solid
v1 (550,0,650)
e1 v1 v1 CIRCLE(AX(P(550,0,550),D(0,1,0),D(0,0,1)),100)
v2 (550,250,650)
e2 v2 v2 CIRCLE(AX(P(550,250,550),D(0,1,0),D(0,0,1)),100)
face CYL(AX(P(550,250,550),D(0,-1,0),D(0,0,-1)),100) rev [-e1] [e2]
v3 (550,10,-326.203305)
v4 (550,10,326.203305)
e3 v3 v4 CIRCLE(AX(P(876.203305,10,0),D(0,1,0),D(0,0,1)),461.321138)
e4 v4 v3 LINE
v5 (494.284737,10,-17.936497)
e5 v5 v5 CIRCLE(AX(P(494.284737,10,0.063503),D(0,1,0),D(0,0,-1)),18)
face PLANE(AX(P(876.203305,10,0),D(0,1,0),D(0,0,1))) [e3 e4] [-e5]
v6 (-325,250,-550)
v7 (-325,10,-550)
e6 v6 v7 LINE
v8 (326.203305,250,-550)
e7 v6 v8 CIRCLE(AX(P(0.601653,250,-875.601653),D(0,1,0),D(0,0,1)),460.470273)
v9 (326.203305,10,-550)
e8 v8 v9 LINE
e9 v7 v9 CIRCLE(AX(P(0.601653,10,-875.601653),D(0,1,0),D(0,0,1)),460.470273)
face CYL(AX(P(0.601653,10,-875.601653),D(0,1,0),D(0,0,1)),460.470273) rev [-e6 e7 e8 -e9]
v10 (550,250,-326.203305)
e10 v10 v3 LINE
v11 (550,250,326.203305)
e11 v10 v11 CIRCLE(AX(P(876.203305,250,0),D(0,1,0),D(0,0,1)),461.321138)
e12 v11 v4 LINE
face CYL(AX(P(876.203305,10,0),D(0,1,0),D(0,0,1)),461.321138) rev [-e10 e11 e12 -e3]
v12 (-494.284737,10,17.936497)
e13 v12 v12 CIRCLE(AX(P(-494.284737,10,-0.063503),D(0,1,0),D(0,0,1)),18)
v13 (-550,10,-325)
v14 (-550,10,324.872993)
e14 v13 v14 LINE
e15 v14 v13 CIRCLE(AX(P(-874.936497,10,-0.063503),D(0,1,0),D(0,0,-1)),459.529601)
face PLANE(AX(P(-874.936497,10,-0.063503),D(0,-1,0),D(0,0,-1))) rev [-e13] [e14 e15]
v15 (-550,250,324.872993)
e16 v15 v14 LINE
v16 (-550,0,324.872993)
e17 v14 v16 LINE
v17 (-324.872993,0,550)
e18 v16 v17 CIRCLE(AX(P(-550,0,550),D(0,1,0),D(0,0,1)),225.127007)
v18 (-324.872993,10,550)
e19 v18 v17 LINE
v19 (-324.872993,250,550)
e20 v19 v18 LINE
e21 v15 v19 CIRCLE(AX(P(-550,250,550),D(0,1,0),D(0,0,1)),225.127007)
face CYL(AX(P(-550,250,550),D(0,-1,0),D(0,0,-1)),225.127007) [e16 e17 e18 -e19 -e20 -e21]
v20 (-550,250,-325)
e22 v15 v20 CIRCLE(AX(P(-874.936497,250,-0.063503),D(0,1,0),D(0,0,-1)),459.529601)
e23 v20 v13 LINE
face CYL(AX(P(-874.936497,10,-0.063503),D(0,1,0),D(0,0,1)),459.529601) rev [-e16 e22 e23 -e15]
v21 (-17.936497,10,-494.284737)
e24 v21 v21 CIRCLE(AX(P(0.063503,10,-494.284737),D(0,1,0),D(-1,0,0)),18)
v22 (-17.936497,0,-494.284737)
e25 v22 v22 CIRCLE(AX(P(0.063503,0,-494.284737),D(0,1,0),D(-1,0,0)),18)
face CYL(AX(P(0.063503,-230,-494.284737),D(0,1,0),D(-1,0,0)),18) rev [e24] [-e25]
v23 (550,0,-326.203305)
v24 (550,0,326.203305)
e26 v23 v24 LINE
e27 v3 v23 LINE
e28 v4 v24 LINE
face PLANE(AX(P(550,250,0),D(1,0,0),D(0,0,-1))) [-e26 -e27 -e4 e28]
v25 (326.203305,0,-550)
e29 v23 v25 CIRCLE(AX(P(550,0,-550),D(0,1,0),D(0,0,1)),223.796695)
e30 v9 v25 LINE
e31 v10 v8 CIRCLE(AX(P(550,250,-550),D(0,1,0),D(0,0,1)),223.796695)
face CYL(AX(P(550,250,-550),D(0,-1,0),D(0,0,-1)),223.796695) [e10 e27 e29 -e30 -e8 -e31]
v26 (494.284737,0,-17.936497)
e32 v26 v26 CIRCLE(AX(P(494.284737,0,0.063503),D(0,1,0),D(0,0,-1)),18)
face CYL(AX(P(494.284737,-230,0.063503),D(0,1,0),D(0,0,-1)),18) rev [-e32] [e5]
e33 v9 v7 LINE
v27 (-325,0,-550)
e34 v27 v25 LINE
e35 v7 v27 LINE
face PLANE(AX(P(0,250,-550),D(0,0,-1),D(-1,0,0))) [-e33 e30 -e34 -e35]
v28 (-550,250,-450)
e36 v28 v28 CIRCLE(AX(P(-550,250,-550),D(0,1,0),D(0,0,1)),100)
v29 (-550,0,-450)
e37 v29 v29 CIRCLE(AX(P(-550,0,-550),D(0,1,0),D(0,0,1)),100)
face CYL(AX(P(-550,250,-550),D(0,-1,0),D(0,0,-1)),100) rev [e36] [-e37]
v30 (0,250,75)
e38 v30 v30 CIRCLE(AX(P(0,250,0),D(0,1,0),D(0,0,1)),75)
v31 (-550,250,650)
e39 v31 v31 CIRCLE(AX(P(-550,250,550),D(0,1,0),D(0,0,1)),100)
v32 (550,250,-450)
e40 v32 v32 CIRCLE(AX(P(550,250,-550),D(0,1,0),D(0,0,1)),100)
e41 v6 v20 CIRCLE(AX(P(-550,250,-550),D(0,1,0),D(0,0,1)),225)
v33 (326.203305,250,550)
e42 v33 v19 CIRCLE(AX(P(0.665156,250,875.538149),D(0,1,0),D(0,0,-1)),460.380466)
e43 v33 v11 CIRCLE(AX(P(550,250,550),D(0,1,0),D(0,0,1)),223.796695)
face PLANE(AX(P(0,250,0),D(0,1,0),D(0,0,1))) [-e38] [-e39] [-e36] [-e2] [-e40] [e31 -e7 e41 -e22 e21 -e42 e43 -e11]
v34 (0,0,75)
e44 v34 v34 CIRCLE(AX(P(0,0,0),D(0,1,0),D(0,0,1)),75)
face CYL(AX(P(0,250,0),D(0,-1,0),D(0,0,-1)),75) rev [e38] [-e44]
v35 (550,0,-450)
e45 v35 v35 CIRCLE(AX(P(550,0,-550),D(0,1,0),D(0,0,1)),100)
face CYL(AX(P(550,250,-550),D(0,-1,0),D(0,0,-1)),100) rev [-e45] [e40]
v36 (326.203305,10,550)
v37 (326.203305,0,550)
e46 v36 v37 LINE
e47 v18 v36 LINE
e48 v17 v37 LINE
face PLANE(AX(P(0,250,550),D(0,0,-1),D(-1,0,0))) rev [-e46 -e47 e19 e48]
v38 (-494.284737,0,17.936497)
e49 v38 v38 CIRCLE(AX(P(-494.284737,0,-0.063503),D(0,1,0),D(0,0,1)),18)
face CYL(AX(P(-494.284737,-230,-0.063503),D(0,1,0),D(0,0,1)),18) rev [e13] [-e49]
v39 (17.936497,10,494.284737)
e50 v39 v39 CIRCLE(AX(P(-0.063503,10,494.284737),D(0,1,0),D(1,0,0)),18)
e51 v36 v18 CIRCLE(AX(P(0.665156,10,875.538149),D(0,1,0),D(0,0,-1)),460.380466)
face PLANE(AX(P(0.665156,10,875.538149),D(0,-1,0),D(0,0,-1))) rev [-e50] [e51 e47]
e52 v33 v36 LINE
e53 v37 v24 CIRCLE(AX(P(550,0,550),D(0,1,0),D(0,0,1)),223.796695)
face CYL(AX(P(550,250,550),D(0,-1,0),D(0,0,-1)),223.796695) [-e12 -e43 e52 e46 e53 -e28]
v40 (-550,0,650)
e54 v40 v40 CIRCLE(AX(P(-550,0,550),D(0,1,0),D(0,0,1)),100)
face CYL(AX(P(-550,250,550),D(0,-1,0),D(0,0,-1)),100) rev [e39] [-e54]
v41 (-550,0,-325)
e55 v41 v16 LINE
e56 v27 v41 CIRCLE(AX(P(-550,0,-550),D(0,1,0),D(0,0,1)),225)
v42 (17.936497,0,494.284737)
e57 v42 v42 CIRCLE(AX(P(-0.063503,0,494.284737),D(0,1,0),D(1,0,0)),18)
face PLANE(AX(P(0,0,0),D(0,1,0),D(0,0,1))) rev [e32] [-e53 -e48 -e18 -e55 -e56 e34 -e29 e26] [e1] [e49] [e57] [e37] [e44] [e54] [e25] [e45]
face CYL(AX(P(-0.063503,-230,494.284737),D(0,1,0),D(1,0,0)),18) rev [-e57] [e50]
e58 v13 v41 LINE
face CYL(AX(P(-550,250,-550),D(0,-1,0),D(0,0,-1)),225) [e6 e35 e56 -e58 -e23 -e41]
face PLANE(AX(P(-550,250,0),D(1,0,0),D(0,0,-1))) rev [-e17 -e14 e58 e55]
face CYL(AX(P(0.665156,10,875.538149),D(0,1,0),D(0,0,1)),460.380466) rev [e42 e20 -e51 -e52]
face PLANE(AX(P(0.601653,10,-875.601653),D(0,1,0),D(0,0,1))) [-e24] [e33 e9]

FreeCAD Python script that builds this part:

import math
import FreeCAD as App
import Part
import Sketcher

V = App.Vector
Q = App.Units.Quantity

doc = App.newDocument("Part")
params = doc.addObject("Spreadsheet::Sheet", "Params")
for row, (alias, value) in enumerate([
    ("sketch1_diameter", "200 mm"),
    ("sketch1_diameter2", "150 mm"),
    ("sketch1_radius", "225 mm"),
    ("pad1_length", "250 mm"),
    ("pocket1_length", "240 mm"),
    ("sketch3_diameter", "36 mm"),
    ("pocket2_length", "240 mm"),
], start=1):
    params.set(f"A{row}", alias)
    params.set(f"B{row}", "=" + value)
    params.setAlias(f"B{row}", alias)

body = doc.addObject("PartDesign::Body", "Body")

# Sketch on XZ plane
sketch1 = doc.addObject("Sketcher::SketchObject", "Sketch")
body.addObject(sketch1)
sketch1.AttachmentSupport = (doc.XZ_Plane, [""])
sketch1.MapMode = "FlatFace"
sketch1.addGeometry([
    Part.LineSegment(V(326.203305, -550, 0), V(-325, -550, 0)),  # 0
    Part.ArcOfCircle(Part.Circle(V(-550, -550, 0), V(0, 0, 1), 225), math.radians(90), math.radians(360)),  # 1
    Part.LineSegment(V(-550, -325, 0), V(-550, 324.872993, 0)),  # 2
    Part.ArcOfCircle(Part.Circle(V(-550, 550, 0), V(0, 0, 1), 225.127007), math.radians(0), math.radians(270)),  # 3
    Part.LineSegment(V(-324.872993, 550, 0), V(326.203305, 550, 0)),  # 4
    Part.ArcOfCircle(Part.Circle(V(550, 550, 0), V(0, 0, 1), 223.796695), math.radians(-90), math.radians(180)),  # 5
    Part.LineSegment(V(550, 326.203305, 0), V(550, -326.203305, 0)),  # 6
    Part.ArcOfCircle(Part.Circle(V(550, -550, 0), V(0, 0, 1), 223.796695), math.radians(180), math.radians(450)),  # 7
    Part.Circle(V(-550, 550, 0), V(0, 0, 1), 100),  # 8
    Part.Circle(V(550, 550, 0), V(0, 0, 1), 100),  # 9
    Part.Circle(V(-550, -550, 0), V(0, 0, 1), 100),  # 10
    Part.Circle(V(0, 0, 0), V(0, 0, 1), 75),  # 11
    Part.Circle(V(550, -550, 0), V(0, 0, 1), 100),  # 12
], False)
sketch1.addConstraint([
    Sketcher.Constraint("Coincident", 0, 2, 1, 2),
    Sketcher.Constraint("Coincident", 1, 1, 2, 1),
    Sketcher.Constraint("Coincident", 2, 2, 3, 2),
    Sketcher.Constraint("Coincident", 3, 1, 4, 1),
    Sketcher.Constraint("Coincident", 4, 2, 5, 2),
    Sketcher.Constraint("Coincident", 5, 1, 6, 1),
    Sketcher.Constraint("Coincident", 6, 2, 7, 2),
    Sketcher.Constraint("Coincident", 7, 1, 0, 1),
    Sketcher.Constraint("Horizontal", 0),
    Sketcher.Constraint("Vertical", 2),
    Sketcher.Constraint("Horizontal", 4),
    Sketcher.Constraint("Vertical", 6),
    Sketcher.Constraint("Coincident", 11, 3, -1, 1),
    Sketcher.Constraint("Coincident", 8, 3, 3, 3),
    Sketcher.Constraint("Coincident", 9, 3, 5, 3),
    Sketcher.Constraint("Coincident", 10, 3, 1, 3),
    Sketcher.Constraint("Coincident", 12, 3, 7, 3),
    Sketcher.Constraint("Equal", 5, 7),
    Sketcher.Constraint("Equal", 8, 9),
    Sketcher.Constraint("Equal", 9, 10),
    Sketcher.Constraint("Equal", 10, 12),
    Sketcher.Constraint("Symmetric", 1, 3, 5, 3, -1, 1),
    Sketcher.Constraint("Symmetric", 3, 3, 7, 3, -1, 1),
    Sketcher.Constraint("Symmetric", 3, 3, 5, 3, -2),
    Sketcher.Constraint("Horizontal", 12, 3, 0, 2),
    Sketcher.Constraint("Horizontal", 9, 3, 3, 1),
    Sketcher.Constraint("Vertical", 10, 3, 1, 1),
    Sketcher.Constraint("Vertical", 12, 3, 5, 1),
    Sketcher.Constraint("Diameter", 8, Q("200 mm")),
    Sketcher.Constraint("Diameter", 11, Q("150 mm")),
    Sketcher.Constraint("Radius", 1, Q("225 mm")),
    Sketcher.Constraint("DistanceX", 1, 3, -1, 1, Q("550 mm")),
    Sketcher.Constraint("DistanceY", 1, 3, -1, 1, Q("550 mm")),
    Sketcher.Constraint("DistanceX", 4, 1, 4, 2, Q("651.076299 mm")),
    Sketcher.Constraint("Radius", 3, Q("225.127007 mm")),
])
sketch1.setExpression("Constraints[28]", "Params.sketch1_diameter")
sketch1.setExpression("Constraints[29]", "Params.sketch1_diameter2")
sketch1.setExpression("Constraints[30]", "Params.sketch1_radius")
pad1 = doc.addObject("PartDesign::Pad", "Pad")
body.addObject(pad1)
pad1.Profile = sketch1
pad1.setExpression("Length", "Params.pad1_length")
pad1.Reversed = True

# Sketch on XZ plane
sketch2 = doc.addObject("Sketcher::SketchObject", "Sketch001")
body.addObject(sketch2)
sketch2.AttachmentSupport = (doc.XZ_Plane, [""])
sketch2.MapMode = "FlatFace"
sketch2.AttachmentOffset = App.Placement(V(0, 0, -250), App.Rotation())
sketch2.addGeometry([
    Part.LineSegment(V(-550, -325, 0), V(-550, 324.872993, 0)),  # 0
    Part.ArcOfCircle(Part.Circle(V(-874.936497, -0.063503, 0), V(0, 0, 1), 459.529601), math.radians(-45), math.radians(45)),  # 1
    Part.LineSegment(V(-324.872993, 550, 0), V(326.203305, 550, 0)),  # 2
    Part.ArcOfCircle(Part.Circle(V(0.665156, 875.538149, 0), V(0, 0, 1), 460.380466), math.radians(-135), math.radians(-45)),  # 3
    Part.LineSegment(V(326.203305, -550, 0), V(-325, -550, 0)),  # 4
    Part.ArcOfCircle(Part.Circle(V(0.601653, -875.601653, 0), V(0, 0, 1), 460.470273), math.radians(45), math.radians(135)),  # 5
    Part.LineSegment(V(550, 326.203305, 0), V(550, -326.203305, 0)),  # 6
    Part.ArcOfCircle(Part.Circle(V(876.203305, 0, 0), V(0, 0, 1), 461.321138), math.radians(135), math.radians(225)),  # 7
], False)
sketch2.addConstraint([
    Sketcher.Constraint("Coincident", 0, 1, 1, 1),
    Sketcher.Constraint("Coincident", 1, 2, 0, 2),
    Sketcher.Constraint("Coincident", 2, 1, 3, 1),
    Sketcher.Constraint("Coincident", 3, 2, 2, 2),
    Sketcher.Constraint("Coincident", 4, 1, 5, 1),
    Sketcher.Constraint("Coincident", 5, 2, 4, 2),
    Sketcher.Constraint("Coincident", 6, 1, 7, 1),
    Sketcher.Constraint("Coincident", 7, 2, 6, 2),
    Sketcher.Constraint("Vertical", 0),
    Sketcher.Constraint("Horizontal", 2),
    Sketcher.Constraint("Horizontal", 4),
    Sketcher.Constraint("Vertical", 6),
    Sketcher.Constraint("Symmetric", 3, 2, 4, 1, -1),
    Sketcher.Constraint("PointOnObject", 7, 3, -1),
    Sketcher.Constraint("DistanceX", 0, 1, -1, 1, Q("550 mm")),
    Sketcher.Constraint("DistanceY", 0, 1, -1, 1, Q("325 mm")),
    Sketcher.Constraint("DistanceY", -1, 1, 2, 1, Q("550 mm")),
    Sketcher.Constraint("DistanceX", 5, 2, -1, 1, Q("325 mm")),
    Sketcher.Constraint("DistanceX", -1, 1, 6, 1, Q("550 mm")),
    Sketcher.Constraint("DistanceX", 3, 2, 7, 3, Q("550 mm")),
    Sketcher.Constraint("Radius", 1, Q("459.529601 mm")),
    Sketcher.Constraint("Radius", 7, Q("461.321138 mm")),
    Sketcher.Constraint("DistanceX", 2, 1, 2, 2, Q("651.076299 mm")),
    Sketcher.Constraint("Radius", 3, Q("460.380466 mm")),
    Sketcher.Constraint("Radius", 5, Q("460.470273 mm")),
    Sketcher.Constraint("DistanceY", 6, 2, 6, 1, Q("652.40661 mm")),
    Sketcher.Constraint("DistanceX", 1, 3, 7, 3, Q("1751.139802 mm")),
])
pocket1 = doc.addObject("PartDesign::Pocket", "Pocket")
body.addObject(pocket1)
pocket1.Profile = sketch2
pocket1.setExpression("Length", "Params.pocket1_length")
pocket1.Reversed = True

# Sketch on XZ plane
sketch3 = doc.addObject("Sketcher::SketchObject", "Sketch002")
body.addObject(sketch3)
sketch3.AttachmentSupport = (doc.XZ_Plane, [""])
sketch3.MapMode = "FlatFace"
sketch3.AttachmentOffset = App.Placement(V(0, 0, -10), App.Rotation())
sketch3.addGeometry(Part.Circle(V(-494.284737, -0.063503, 0), V(0, 0, 1), 18), False)
sketch3.addConstraint([
    Sketcher.Constraint("Diameter", 0, Q("36 mm")),
    Sketcher.Constraint("DistanceX", 0, 3, -1, 1, Q("494.284737 mm")),
    Sketcher.Constraint("DistanceY", 0, 3, -1, 1, Q("0.063503 mm")),
])
sketch3.setExpression("Constraints[0]", "Params.sketch3_diameter")
pocket2 = doc.addObject("PartDesign::Pocket", "Pocket001")
body.addObject(pocket2)
pocket2.Profile = sketch3
pocket2.setExpression("Length", "Params.pocket2_length")
pocket2.Reversed = True
doc.recompute()

polarpattern = doc.addObject("PartDesign::PolarPattern", "PolarPattern")
body.addObject(polarpattern)
polarpattern.Originals = [pocket2]
polarpattern.Axis = (doc.Y_Axis, [""])
polarpattern.Angle = 360
polarpattern.Occurrences = 4
body.Tip = polarpattern

doc.recompute()
